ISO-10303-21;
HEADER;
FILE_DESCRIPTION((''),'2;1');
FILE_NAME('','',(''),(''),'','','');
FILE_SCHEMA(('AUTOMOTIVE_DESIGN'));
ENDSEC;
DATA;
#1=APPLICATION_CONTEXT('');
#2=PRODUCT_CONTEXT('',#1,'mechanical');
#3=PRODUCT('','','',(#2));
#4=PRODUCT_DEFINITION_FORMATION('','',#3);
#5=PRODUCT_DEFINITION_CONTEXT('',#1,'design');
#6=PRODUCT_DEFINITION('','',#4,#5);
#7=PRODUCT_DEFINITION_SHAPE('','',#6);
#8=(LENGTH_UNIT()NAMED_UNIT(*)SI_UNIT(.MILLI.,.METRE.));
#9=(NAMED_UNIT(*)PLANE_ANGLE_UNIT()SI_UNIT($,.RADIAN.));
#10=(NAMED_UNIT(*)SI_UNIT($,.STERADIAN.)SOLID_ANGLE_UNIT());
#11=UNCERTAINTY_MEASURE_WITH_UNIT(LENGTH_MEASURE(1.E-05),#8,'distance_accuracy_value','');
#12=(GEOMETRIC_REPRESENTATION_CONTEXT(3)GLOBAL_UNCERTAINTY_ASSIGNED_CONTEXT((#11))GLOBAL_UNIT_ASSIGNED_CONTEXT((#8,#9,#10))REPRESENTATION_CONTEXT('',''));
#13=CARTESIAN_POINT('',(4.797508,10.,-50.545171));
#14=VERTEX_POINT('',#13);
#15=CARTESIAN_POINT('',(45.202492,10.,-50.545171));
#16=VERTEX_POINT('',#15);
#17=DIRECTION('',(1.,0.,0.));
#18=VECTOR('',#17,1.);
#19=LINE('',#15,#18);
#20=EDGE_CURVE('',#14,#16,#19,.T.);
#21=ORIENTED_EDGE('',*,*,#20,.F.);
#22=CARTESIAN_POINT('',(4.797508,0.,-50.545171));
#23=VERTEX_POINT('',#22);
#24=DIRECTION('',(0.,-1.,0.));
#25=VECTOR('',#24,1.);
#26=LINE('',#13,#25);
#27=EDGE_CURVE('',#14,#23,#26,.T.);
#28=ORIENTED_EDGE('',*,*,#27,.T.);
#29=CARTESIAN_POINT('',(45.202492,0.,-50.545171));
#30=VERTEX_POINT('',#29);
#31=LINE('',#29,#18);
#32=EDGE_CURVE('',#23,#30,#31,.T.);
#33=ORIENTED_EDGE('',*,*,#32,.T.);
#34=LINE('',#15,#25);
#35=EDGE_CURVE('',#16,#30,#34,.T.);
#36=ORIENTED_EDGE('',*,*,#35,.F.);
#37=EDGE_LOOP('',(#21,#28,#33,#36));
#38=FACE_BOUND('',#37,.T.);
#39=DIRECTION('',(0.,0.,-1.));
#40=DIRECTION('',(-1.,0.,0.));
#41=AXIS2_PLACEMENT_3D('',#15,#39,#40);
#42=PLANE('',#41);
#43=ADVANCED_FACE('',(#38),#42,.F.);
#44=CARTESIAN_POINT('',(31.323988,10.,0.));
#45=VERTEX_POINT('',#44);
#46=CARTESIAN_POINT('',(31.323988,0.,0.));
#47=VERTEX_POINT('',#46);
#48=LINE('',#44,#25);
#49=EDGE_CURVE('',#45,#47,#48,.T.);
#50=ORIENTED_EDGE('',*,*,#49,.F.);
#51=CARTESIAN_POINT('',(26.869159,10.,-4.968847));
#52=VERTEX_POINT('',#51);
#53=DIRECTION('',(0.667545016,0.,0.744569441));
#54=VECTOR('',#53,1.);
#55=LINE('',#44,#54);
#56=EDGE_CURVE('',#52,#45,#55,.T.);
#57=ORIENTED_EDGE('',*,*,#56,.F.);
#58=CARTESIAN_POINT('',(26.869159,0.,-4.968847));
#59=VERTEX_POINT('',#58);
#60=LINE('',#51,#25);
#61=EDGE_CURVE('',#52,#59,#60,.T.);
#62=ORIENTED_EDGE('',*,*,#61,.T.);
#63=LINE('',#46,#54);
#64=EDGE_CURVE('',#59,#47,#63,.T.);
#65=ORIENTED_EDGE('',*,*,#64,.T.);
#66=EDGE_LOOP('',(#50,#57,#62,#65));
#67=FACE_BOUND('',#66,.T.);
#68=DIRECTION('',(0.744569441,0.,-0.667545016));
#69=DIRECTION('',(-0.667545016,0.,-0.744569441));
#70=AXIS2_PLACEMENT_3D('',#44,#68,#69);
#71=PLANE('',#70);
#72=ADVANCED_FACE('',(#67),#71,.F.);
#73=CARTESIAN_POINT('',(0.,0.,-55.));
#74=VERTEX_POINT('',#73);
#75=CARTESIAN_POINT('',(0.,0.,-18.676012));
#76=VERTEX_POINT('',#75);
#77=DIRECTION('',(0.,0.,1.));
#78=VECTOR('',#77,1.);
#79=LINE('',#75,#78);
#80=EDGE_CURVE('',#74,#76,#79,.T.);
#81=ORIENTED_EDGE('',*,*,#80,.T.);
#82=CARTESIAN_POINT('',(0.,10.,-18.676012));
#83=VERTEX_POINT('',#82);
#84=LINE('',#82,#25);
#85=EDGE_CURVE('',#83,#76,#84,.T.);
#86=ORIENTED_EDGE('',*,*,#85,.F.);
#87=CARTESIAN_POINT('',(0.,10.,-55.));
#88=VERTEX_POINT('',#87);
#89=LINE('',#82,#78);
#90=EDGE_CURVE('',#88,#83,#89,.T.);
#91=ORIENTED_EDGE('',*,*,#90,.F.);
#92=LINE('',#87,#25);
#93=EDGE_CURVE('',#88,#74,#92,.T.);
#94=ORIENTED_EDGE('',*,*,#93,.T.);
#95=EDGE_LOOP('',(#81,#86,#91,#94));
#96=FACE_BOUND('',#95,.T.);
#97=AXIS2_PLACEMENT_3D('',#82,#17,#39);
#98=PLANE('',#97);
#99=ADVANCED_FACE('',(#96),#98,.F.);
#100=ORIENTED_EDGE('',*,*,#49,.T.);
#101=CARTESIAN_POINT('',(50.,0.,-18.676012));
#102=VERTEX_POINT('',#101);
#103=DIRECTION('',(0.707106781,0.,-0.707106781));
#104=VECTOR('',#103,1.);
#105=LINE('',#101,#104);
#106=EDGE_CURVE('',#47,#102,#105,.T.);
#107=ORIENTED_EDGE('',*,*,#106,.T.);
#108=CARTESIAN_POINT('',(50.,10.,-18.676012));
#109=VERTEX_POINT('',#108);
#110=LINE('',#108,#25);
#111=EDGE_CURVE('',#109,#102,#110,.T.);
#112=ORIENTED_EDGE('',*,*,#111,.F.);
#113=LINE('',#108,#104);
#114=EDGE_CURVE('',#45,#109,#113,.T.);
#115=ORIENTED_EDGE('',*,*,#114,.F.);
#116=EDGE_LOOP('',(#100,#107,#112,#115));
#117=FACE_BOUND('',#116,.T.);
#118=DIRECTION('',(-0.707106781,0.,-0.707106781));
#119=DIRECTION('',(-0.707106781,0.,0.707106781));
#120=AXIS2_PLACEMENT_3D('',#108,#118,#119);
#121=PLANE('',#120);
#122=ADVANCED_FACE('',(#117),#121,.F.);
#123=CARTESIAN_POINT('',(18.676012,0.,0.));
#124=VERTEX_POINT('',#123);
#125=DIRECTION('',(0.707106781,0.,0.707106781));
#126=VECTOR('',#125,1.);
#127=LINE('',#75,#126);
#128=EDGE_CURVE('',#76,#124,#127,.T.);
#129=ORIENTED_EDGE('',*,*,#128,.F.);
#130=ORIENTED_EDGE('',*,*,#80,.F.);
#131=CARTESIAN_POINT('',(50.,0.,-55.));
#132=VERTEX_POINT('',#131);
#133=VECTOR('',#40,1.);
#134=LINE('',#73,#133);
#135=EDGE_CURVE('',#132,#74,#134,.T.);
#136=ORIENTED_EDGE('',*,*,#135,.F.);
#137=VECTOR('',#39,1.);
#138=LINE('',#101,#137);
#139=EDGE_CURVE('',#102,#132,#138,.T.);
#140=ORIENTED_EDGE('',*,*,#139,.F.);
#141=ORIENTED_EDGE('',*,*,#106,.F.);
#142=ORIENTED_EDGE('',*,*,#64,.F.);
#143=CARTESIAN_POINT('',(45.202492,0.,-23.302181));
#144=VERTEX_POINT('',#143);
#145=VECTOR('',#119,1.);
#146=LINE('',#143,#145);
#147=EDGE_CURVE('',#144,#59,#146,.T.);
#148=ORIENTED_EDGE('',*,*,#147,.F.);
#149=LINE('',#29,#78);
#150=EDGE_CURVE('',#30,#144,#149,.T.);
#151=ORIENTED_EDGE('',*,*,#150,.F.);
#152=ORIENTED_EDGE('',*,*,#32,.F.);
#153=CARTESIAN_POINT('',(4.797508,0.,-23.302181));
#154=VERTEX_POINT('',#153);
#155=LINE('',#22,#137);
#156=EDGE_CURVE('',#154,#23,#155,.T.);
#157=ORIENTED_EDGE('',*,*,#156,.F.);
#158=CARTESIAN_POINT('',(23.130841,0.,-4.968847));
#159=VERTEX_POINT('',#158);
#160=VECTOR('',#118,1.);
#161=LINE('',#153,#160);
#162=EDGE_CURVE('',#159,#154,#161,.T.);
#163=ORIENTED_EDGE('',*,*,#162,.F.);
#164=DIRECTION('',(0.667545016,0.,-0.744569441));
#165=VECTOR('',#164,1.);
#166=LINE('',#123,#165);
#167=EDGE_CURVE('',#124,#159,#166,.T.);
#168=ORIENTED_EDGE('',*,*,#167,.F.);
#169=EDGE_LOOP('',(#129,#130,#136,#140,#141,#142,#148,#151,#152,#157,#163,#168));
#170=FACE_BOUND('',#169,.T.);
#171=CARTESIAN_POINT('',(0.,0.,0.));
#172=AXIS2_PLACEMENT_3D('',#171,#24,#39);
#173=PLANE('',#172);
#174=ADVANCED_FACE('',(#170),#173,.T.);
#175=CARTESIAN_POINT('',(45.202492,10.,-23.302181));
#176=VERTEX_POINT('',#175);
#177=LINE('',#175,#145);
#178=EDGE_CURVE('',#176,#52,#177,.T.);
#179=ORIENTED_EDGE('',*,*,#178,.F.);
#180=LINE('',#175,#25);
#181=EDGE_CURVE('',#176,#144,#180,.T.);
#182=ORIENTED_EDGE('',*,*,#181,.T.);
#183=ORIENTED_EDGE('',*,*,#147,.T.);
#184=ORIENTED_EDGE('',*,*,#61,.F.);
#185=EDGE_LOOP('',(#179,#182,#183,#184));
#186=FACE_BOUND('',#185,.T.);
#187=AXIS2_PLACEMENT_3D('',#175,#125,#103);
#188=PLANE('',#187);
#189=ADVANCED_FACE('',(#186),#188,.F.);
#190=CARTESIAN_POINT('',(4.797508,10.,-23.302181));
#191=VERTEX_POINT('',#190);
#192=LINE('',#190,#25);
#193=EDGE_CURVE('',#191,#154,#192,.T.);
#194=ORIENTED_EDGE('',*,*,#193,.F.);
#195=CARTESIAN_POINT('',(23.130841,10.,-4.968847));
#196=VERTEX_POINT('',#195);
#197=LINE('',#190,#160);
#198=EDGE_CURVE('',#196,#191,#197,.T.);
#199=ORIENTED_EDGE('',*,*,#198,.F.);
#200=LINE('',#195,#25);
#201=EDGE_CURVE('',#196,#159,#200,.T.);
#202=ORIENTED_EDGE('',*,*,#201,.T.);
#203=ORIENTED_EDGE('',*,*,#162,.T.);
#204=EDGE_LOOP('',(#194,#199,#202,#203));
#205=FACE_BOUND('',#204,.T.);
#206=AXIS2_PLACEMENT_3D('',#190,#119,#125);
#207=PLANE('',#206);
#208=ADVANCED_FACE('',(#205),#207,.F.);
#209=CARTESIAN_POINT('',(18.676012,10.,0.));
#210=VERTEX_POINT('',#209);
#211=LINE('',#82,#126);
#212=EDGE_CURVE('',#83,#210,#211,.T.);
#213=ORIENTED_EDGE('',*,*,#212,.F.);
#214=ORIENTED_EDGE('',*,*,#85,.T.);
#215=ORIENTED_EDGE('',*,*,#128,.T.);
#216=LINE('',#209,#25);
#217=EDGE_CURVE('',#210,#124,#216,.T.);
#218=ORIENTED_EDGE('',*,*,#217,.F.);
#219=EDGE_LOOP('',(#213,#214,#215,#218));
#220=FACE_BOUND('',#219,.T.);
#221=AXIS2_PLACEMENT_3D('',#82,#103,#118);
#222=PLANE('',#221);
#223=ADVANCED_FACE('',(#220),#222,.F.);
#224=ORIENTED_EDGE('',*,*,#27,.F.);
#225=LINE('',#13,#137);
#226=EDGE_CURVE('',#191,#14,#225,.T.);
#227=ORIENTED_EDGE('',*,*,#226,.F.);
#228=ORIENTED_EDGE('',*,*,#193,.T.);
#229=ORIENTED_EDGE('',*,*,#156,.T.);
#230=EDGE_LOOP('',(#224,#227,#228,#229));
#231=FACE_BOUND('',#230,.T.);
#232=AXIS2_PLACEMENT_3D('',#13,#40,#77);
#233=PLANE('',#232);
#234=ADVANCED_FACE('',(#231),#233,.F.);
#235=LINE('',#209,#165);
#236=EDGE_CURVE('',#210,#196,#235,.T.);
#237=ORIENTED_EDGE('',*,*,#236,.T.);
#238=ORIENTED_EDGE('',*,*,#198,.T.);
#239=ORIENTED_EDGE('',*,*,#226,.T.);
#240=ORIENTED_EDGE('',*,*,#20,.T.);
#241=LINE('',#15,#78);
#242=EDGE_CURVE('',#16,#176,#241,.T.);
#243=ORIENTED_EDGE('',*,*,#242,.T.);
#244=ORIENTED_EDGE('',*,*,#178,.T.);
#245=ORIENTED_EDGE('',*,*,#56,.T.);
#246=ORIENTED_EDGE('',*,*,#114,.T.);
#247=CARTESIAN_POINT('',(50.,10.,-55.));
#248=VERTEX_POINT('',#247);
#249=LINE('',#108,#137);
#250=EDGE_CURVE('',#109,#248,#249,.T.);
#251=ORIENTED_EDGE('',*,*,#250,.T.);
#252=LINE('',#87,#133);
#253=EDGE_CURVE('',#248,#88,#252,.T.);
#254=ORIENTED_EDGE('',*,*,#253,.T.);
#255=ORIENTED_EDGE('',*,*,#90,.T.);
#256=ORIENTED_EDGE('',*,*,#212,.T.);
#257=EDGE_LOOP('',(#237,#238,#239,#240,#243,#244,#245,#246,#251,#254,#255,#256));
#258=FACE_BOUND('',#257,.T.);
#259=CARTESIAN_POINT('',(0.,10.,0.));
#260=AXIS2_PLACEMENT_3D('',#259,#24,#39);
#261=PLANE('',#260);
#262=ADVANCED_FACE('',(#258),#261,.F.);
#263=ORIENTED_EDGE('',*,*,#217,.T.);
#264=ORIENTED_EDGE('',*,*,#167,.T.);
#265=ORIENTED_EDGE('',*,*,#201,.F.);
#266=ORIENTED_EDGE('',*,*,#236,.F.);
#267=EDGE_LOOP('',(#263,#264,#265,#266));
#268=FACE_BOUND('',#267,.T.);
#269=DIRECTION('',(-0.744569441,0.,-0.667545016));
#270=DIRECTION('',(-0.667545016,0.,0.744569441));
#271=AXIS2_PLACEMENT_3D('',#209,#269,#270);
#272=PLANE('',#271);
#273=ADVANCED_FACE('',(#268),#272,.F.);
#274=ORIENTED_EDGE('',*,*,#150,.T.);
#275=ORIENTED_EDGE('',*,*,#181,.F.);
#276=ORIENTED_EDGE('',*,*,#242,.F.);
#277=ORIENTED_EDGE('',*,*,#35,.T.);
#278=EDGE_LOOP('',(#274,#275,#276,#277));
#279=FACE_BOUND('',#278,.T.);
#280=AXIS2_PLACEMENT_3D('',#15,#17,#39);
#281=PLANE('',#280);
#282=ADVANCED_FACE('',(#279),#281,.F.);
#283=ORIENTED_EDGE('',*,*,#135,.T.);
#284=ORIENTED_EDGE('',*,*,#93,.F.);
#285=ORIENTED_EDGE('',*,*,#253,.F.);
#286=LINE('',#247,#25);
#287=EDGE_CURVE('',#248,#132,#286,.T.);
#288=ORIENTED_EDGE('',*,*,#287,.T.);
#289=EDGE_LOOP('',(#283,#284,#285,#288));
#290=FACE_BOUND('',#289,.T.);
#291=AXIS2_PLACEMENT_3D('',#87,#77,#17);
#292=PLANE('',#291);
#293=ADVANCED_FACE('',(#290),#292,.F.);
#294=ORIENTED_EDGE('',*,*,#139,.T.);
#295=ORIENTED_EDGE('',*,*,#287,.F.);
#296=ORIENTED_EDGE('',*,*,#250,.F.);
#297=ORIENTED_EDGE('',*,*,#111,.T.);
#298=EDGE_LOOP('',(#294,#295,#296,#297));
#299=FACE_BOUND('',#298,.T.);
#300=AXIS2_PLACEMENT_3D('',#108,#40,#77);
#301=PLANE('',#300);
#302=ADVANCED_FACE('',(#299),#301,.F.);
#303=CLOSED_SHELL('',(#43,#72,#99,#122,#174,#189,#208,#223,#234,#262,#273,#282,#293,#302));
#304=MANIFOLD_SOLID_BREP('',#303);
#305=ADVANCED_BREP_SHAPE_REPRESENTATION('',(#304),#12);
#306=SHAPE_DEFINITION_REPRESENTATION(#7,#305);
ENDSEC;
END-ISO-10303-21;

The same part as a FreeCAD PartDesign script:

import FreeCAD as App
import Part
import Sketcher

V = App.Vector
Q = App.Units.Quantity

doc = App.newDocument("Part")
body = doc.addObject("PartDesign::Body", "Body")

# Sketch on XZ plane
sketch1 = body.newObject("Sketcher::SketchObject", "Sketch")
sketch1.AttachmentSupport = (doc.getObject("XZ_Plane"), [""])
sketch1.MapMode = "FlatFace"
sketch1.addGeometry(Part.LineSegment(V(0, -19, 0), V(19, 0, 0)), False)
sketch1.addGeometry(Part.LineSegment(V(19, 0, 0), V(23, -5, 0)), False)
sketch1.addGeometry(Part.LineSegment(V(23, -5, 0), V(5, -23, 0)), False)
sketch1.addGeometry(Part.LineSegment(V(5, -23, 0), V(5, -51, 0)), False)
sketch1.addGeometry(Part.LineSegment(V(5, -51, 0), V(45, -51, 0)), False)
sketch1.addGeometry(Part.LineSegment(V(45, -51, 0), V(45, -23, 0)), False)
sketch1.addGeometry(Part.LineSegment(V(45, -23, 0), V(27, -5, 0)), False)
sketch1.addGeometry(Part.LineSegment(V(27, -5, 0), V(31, 0, 0)), False)
sketch1.addGeometry(Part.LineSegment(V(31, 0, 0), V(50, -19, 0)), False)
sketch1.addGeometry(Part.LineSegment(V(50, -19, 0), V(50, -55, 0)), False)
sketch1.addGeometry(Part.LineSegment(V(50, -55, 0), V(0, -55, 0)), False)
sketch1.addGeometry(Part.LineSegment(V(0, -55, 0), V(0, -19, 0)), False)
sketch1.addConstraint(Sketcher.Constraint("Coincident", 0, 2, 1, 1))
sketch1.addConstraint(Sketcher.Constraint("Coincident", 1, 2, 2, 1))
sketch1.addConstraint(Sketcher.Constraint("Coincident", 2, 2, 3, 1))
sketch1.addConstraint(Sketcher.Constraint("Coincident", 3, 2, 4, 1))
sketch1.addConstraint(Sketcher.Constraint("Coincident", 4, 2, 5, 1))
sketch1.addConstraint(Sketcher.Constraint("Coincident", 5, 2, 6, 1))
sketch1.addConstraint(Sketcher.Constraint("Coincident", 6, 2, 7, 1))
sketch1.addConstraint(Sketcher.Constraint("Coincident", 7, 2, 8, 1))
sketch1.addConstraint(Sketcher.Constraint("Coincident", 8, 2, 9, 1))
sketch1.addConstraint(Sketcher.Constraint("Coincident", 9, 2, 10, 1))
sketch1.addConstraint(Sketcher.Constraint("Coincident", 10, 2, 11, 1))
sketch1.addConstraint(Sketcher.Constraint("Coincident", 11, 2, 0, 1))
sketch1.addConstraint(Sketcher.Constraint("Vertical", 3))
sketch1.addConstraint(Sketcher.Constraint("Horizontal", 4))
sketch1.addConstraint(Sketcher.Constraint("Vertical", 5))
sketch1.addConstraint(Sketcher.Constraint("Vertical", 9))
sketch1.addConstraint(Sketcher.Constraint("Horizontal", 10))
sketch1.addConstraint(Sketcher.Constraint("Vertical", 11))
sketch1.addConstraint(Sketcher.Constraint("PointOnObject", 0, 2, -1))
sketch1.addConstraint(Sketcher.Constraint("PointOnObject", 7, 2, -1))
sketch1.addConstraint(Sketcher.Constraint("PointOnObject", 10, 2, -2))
sketch1.addConstraint(Sketcher.Constraint("Parallel", 0, 2))
sketch1.addConstraint(Sketcher.Constraint("Perpendicular", 2, 6))
sketch1.addConstraint(Sketcher.Constraint("Parallel", 6, 8))
sketch1.addConstraint(Sketcher.Constraint("Horizontal", 2, 2, 5, 2))
sketch1.addConstraint(Sketcher.Constraint("Horizontal", 1, 2, 6, 2))
sketch1.addConstraint(Sketcher.Constraint("Horizontal", 8, 2, 11, 2))
sketch1.addConstraint(Sketcher.Constraint("Equal", 2, 6))
sketch1.addConstraint(Sketcher.Constraint("Equal", 1, 7))
sketch1.addConstraint(Sketcher.Constraint("DistanceX", 10, 2, 10, 1, Q("50 mm")))
sketch1.addConstraint(Sketcher.Constraint("DistanceY", 9, 2, -1, 1, Q("55 mm")))
sketch1.addConstraint(Sketcher.Constraint("DistanceY", 3, 2, 3, 1, Q("27.242991 mm")))
sketch1.addConstraint(Sketcher.Constraint("Distance", 0, Q("26.41187 mm")))
sketch1.addConstraint(Sketcher.Constraint("Distance", 1, Q("6.673451 mm")))
sketch1.addConstraint(Sketcher.Constraint("Distance", 2, Q("25.927249 mm")))
sketch1.addConstraint(Sketcher.Constraint("DistanceX", 4, 1, 4, 2, Q("40.404984 mm")))
pad1 = body.newObject("PartDesign::Pad", "Pad")
pad1.Profile = sketch1
pad1.Length = 10
pad1.Reversed = True

doc.recompute()
